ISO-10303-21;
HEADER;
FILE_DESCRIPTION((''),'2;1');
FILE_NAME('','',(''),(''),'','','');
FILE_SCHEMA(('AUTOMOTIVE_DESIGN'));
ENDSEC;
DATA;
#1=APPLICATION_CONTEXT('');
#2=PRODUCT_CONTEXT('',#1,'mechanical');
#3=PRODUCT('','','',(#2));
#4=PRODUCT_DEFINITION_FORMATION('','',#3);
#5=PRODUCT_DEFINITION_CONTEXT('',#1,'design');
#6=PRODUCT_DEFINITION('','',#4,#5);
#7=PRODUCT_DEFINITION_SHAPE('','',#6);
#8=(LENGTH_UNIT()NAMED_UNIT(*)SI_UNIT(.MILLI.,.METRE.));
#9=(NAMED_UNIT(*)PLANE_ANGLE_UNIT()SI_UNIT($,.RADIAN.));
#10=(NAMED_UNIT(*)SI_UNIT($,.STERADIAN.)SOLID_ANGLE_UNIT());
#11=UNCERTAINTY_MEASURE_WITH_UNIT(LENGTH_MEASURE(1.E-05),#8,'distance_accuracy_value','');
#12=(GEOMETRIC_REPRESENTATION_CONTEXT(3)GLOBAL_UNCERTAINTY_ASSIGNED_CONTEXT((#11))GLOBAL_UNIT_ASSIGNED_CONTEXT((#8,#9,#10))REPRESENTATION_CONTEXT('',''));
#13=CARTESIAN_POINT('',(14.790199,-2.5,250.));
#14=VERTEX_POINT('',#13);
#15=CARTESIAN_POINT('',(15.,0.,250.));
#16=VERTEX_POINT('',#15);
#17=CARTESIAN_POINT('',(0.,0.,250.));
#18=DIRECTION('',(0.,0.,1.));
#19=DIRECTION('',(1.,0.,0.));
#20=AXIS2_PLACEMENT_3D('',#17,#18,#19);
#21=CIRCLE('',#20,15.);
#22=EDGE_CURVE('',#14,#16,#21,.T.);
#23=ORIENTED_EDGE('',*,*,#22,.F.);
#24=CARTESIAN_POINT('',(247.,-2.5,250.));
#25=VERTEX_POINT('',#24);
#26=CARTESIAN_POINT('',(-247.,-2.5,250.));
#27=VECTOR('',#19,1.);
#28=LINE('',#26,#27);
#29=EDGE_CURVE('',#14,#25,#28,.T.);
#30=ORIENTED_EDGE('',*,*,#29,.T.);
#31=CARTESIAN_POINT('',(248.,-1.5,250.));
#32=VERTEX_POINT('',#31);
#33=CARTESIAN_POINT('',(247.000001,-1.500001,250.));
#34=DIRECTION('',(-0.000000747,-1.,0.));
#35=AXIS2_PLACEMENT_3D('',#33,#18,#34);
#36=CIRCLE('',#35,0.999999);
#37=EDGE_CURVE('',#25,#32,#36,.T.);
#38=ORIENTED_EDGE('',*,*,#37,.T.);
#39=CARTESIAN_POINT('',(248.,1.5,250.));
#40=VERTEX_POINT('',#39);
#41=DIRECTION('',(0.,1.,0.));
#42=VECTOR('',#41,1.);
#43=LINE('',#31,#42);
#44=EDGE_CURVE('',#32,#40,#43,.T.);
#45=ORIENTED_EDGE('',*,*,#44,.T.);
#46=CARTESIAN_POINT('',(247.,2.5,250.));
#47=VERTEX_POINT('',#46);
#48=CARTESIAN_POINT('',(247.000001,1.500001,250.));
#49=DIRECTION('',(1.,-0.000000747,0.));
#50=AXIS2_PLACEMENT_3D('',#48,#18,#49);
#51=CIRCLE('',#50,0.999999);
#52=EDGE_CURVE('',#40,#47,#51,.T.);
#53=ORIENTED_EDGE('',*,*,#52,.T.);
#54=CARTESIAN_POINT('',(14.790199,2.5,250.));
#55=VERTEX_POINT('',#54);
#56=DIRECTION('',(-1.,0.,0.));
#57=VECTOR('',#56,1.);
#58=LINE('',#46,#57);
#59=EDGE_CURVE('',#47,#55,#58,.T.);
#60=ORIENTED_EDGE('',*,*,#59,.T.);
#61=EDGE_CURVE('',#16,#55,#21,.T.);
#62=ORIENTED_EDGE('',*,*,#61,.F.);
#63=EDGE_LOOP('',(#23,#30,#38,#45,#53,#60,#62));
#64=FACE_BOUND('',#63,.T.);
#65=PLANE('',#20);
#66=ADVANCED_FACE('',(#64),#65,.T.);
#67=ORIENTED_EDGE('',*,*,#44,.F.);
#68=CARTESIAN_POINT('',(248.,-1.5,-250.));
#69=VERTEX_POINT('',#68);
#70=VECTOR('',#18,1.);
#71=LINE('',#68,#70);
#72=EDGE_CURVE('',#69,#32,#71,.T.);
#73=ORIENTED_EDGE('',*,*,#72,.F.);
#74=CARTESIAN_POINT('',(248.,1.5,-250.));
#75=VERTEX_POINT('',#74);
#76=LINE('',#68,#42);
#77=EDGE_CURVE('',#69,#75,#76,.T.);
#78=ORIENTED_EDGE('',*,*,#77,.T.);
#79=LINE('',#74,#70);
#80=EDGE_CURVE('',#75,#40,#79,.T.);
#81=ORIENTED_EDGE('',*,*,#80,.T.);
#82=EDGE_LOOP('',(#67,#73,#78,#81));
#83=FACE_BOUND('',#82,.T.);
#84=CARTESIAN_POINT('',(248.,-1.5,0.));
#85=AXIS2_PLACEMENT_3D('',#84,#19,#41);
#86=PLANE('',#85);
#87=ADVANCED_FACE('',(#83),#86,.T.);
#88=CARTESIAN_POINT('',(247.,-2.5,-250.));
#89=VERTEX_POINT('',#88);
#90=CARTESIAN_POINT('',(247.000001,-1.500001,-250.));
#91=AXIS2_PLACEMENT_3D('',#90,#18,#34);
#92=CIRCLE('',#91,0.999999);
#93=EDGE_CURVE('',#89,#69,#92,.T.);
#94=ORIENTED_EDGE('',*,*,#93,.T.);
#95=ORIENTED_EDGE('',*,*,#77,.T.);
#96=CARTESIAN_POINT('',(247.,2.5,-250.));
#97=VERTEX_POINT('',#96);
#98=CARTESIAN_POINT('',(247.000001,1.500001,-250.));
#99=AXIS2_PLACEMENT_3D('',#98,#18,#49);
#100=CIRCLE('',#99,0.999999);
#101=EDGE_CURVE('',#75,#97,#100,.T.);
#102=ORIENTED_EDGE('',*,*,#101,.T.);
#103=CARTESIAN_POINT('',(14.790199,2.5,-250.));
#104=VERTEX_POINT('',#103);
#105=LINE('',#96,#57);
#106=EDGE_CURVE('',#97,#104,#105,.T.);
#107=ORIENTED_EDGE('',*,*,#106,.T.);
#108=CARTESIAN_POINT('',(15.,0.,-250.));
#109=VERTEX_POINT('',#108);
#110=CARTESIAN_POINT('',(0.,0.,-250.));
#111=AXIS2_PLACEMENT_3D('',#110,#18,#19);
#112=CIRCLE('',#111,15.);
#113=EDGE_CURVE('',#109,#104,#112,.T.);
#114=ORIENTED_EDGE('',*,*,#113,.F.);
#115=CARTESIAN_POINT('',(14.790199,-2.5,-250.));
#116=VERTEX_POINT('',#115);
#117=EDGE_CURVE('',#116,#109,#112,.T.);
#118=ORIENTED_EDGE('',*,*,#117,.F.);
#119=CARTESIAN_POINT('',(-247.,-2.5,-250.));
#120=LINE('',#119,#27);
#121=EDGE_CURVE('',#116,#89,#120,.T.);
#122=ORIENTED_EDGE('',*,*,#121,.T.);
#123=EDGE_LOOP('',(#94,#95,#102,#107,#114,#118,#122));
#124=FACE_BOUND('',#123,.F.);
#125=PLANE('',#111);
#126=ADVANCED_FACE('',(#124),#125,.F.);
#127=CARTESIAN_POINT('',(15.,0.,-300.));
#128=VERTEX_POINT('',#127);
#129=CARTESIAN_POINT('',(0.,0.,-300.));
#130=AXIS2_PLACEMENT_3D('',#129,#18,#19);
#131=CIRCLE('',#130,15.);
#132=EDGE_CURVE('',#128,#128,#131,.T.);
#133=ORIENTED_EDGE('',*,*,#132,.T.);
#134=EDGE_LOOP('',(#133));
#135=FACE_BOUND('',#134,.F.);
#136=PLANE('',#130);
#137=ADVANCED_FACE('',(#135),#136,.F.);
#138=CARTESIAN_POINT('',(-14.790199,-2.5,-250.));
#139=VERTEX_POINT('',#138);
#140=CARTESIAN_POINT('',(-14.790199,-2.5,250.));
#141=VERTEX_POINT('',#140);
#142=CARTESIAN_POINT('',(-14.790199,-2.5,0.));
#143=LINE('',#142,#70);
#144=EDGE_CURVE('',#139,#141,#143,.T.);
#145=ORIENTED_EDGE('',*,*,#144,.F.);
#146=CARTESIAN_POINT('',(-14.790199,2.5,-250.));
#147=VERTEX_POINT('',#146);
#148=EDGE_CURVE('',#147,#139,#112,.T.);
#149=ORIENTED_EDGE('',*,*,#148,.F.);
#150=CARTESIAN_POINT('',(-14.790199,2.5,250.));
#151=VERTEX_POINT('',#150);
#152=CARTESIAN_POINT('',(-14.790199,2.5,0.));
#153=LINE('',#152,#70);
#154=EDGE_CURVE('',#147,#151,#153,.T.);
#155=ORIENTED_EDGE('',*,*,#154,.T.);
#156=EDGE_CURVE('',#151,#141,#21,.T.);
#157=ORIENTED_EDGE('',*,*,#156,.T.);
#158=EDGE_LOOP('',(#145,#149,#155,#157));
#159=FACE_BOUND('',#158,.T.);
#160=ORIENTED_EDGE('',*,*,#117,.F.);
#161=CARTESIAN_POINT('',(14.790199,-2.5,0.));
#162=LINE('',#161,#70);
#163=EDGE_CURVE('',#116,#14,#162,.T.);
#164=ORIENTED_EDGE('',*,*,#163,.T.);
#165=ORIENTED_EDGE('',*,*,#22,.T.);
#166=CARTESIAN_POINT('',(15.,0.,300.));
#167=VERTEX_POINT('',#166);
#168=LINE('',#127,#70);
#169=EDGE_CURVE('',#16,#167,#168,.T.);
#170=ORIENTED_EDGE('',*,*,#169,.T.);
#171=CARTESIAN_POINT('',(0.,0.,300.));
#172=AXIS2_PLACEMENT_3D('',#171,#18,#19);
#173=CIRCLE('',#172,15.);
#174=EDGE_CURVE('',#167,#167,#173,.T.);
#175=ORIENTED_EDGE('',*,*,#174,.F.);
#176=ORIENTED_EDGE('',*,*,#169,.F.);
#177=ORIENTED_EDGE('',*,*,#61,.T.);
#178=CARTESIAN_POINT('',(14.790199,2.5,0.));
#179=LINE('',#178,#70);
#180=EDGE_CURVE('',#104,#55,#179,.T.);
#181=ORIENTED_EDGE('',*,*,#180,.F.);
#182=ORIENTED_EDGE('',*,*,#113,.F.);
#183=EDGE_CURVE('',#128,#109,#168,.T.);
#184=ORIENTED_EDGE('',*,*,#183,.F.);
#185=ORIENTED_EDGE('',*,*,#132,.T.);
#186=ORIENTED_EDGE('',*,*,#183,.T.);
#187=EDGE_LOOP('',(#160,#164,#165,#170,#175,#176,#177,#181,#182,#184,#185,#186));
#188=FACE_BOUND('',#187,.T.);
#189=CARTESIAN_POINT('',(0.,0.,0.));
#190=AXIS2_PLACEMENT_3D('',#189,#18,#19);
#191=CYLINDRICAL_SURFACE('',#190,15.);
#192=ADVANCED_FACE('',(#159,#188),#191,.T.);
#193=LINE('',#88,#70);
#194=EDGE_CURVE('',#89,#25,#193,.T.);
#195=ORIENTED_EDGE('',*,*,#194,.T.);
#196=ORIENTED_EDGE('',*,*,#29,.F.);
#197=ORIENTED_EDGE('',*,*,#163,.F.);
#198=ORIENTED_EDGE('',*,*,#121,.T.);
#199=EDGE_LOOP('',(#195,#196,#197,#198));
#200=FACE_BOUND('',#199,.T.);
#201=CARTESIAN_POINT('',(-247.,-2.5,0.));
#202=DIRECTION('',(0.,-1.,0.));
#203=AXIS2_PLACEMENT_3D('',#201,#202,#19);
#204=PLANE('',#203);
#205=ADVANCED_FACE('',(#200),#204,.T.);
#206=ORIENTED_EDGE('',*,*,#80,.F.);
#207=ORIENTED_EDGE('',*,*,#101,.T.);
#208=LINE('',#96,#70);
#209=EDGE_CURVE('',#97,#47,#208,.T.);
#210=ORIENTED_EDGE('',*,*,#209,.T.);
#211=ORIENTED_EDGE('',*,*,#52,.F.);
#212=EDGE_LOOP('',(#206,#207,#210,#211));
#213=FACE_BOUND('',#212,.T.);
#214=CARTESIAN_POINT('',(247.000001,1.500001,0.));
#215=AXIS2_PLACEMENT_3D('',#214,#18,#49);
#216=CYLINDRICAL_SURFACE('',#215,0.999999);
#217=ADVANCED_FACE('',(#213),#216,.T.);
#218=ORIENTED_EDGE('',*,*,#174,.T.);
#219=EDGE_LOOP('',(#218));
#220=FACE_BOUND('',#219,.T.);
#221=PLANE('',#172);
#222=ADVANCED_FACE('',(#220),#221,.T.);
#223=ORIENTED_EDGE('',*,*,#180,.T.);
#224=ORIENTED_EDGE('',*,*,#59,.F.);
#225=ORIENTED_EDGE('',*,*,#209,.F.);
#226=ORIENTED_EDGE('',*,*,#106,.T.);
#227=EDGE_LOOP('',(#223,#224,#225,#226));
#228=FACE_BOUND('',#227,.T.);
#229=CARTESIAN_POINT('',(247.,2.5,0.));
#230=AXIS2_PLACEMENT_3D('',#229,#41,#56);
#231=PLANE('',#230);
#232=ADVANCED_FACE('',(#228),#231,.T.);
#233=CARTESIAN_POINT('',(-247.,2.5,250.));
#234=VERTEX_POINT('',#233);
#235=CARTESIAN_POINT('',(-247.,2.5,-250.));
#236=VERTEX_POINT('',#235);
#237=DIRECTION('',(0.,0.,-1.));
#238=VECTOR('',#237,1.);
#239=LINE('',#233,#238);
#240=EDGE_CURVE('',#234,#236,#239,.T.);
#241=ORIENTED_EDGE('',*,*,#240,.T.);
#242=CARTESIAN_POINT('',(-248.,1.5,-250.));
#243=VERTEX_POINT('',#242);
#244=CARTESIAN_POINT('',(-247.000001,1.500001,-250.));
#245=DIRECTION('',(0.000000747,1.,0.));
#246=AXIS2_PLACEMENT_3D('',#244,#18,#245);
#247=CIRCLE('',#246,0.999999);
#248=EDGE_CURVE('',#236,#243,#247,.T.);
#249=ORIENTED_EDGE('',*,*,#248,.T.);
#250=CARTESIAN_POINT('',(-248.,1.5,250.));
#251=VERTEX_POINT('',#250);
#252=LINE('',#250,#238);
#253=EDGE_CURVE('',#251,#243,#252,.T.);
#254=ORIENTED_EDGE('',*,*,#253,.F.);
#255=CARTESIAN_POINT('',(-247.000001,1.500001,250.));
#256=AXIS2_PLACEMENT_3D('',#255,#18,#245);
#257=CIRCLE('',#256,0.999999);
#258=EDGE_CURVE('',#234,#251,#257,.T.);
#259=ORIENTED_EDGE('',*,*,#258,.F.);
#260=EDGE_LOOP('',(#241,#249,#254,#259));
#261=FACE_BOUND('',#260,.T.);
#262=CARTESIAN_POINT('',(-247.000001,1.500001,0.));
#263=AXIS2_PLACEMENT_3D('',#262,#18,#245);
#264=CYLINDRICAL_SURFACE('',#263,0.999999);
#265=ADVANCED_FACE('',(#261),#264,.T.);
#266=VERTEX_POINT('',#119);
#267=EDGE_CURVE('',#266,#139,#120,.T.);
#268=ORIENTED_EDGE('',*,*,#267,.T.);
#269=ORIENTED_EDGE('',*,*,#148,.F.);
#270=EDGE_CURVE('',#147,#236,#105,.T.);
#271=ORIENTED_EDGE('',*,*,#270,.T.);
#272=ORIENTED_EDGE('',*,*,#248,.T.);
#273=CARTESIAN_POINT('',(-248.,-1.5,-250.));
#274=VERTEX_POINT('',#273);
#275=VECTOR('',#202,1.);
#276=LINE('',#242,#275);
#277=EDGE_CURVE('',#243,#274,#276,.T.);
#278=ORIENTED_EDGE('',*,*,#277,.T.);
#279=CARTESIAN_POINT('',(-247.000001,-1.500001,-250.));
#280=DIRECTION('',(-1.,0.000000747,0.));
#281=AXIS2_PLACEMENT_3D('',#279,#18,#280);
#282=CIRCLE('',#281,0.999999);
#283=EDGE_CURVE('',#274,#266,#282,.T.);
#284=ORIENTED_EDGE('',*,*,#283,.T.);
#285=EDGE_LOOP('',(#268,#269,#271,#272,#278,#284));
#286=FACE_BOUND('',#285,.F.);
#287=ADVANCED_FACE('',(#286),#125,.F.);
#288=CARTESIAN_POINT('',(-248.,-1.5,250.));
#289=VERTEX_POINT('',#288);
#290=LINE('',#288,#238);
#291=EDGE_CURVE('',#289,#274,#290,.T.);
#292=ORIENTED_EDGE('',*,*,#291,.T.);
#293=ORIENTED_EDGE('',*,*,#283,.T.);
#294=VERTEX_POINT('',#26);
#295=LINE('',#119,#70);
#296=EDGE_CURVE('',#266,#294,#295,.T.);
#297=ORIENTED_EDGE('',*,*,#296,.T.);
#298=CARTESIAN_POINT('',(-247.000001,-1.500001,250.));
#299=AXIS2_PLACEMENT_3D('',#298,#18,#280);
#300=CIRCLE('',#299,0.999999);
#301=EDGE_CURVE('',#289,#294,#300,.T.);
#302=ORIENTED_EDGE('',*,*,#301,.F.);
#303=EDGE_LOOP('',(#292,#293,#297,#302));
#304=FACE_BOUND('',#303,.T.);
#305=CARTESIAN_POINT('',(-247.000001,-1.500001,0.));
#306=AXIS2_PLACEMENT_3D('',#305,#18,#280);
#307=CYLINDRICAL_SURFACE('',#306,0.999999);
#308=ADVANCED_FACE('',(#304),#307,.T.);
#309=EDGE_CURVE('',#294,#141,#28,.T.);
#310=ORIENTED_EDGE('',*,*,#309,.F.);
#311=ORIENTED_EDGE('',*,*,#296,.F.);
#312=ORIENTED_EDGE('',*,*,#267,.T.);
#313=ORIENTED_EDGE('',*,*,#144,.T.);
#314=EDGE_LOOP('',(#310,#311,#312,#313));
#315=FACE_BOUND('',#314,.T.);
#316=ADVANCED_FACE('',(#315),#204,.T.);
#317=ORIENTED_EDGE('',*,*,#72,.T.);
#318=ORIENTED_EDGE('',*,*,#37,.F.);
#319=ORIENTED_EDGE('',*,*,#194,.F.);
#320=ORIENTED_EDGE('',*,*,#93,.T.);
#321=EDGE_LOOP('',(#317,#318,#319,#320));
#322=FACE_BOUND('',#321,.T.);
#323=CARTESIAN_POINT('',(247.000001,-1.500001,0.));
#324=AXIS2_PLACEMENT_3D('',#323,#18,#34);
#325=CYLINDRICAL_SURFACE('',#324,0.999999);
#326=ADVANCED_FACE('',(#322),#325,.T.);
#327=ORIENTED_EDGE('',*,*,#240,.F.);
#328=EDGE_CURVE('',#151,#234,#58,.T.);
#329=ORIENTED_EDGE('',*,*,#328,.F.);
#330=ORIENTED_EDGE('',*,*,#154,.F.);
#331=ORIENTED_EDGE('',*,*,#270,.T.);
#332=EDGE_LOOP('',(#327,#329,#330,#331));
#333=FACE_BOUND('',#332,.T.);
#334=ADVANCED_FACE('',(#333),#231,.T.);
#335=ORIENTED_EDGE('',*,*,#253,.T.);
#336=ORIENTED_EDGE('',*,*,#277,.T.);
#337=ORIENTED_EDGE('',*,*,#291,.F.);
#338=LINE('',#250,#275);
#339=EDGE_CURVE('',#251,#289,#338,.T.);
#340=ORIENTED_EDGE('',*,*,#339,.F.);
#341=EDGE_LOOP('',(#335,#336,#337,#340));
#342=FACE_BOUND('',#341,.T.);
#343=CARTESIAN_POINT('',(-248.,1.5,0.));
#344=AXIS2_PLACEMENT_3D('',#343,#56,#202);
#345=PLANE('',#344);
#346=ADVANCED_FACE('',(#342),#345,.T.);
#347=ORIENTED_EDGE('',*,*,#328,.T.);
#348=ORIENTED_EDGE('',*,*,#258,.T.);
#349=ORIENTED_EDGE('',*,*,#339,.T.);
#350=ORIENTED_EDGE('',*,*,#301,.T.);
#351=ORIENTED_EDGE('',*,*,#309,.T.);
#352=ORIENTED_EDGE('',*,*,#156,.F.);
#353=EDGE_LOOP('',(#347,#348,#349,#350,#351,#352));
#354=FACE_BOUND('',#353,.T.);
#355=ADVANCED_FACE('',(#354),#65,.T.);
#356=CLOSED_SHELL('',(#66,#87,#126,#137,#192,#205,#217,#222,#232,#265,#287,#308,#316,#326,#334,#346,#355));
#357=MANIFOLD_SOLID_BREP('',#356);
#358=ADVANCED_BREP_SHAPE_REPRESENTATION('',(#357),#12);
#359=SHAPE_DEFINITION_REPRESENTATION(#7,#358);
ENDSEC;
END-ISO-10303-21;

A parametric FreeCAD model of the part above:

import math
import FreeCAD as App
import Part
import Sketcher

V = App.Vector
Q = App.Units.Quantity

doc = App.newDocument("Part")
params = doc.addObject("Spreadsheet::Sheet", "Params")
for row, (alias, value) in enumerate([
    ("sketch1_diameter", "30 mm"),
    ("pad1_length", "600 mm"),
    ("sketch2_radius", "0.999999 mm"),
    ("sketch2_width", "494 mm"),
    ("sketch2_height", "3 mm"),
    ("pad2_length", "500 mm"),
], start=1):
    params.set(f"A{row}", alias)
    params.set(f"B{row}", "=" + value)
    params.setAlias(f"B{row}", alias)

body = doc.addObject("PartDesign::Body", "Body")

sketch1 = doc.addObject("Sketcher::SketchObject", "Sketch")
body.addObject(sketch1)
sketch1.AttachmentSupport = (doc.XY_Plane, [""])
sketch1.MapMode = "FlatFace"
sketch1.addGeometry(Part.Circle(V(0, 0, 0), V(0, 0, 1), 15), False)
sketch1.addConstraint([
    Sketcher.Constraint("Coincident", 0, 3, -1, 1),
    Sketcher.Constraint("Diameter", 0, Q("30 mm")),
])
sketch1.setExpression("Constraints[1]", "Params.sketch1_diameter")
pad1 = doc.addObject("PartDesign::Pad", "Pad")
body.addObject(pad1)
pad1.Profile = sketch1
pad1.setExpression("Length", "Params.pad1_length")
pad1.Midplane = True

sketch2 = doc.addObject("Sketcher::SketchObject", "Sketch001")
body.addObject(sketch2)
sketch2.AttachmentSupport = (doc.XY_Plane, [""])
sketch2.MapMode = "FlatFace"
sketch2.addGeometry([
    Part.ArcOfCircle(Part.Circle(V(-247, -1.5, 0), V(0, 0, 1), 1), math.radians(180), math.radians(270)),
    Part.LineSegment(V(-247, -2.5, 0), V(247, -2.5, 0)),
    Part.ArcOfCircle(Part.Circle(V(247, -1.5, 0), V(0, 0, 1), 1), math.radians(-90), math.radians(0)),
    Part.LineSegment(V(248, -1.5, 0), V(248, 1.5, 0)),
    Part.ArcOfCircle(Part.Circle(V(247, 1.5, 0), V(0, 0, 1), 1), math.radians(0), math.radians(90)),
    Part.LineSegment(V(247, 2.5, 0), V(-247, 2.5, 0)),
    Part.ArcOfCircle(Part.Circle(V(-247, 1.5, 0), V(0, 0, 1), 1), math.radians(90), math.radians(180)),
    Part.LineSegment(V(-248, 1.5, 0), V(-248, -1.5, 0)),
], False)
sketch2.addConstraint([
    Sketcher.Constraint("Tangent", 0, 2, 1, 1),
    Sketcher.Constraint("Tangent", 1, 2, 2, 1),
    Sketcher.Constraint("Tangent", 2, 2, 3, 1),
    Sketcher.Constraint("Tangent", 3, 2, 4, 1),
    Sketcher.Constraint("Tangent", 4, 2, 5, 1),
    Sketcher.Constraint("Tangent", 5, 2, 6, 1),
    Sketcher.Constraint("Tangent", 6, 2, 7, 1),
    Sketcher.Constraint("Tangent", 7, 2, 0, 1),
    Sketcher.Constraint("Horizontal", 1),
    Sketcher.Constraint("Vertical", 3),
    Sketcher.Constraint("Horizontal", 5),
    Sketcher.Constraint("Vertical", 7),
    Sketcher.Constraint("Equal", 0, 2),
    Sketcher.Constraint("Equal", 2, 4),
    Sketcher.Constraint("Equal", 4, 6),
    Sketcher.Constraint("Symmetric", 0, 3, 4, 3, -1, 1),
    Sketcher.Constraint("Radius", 0, Q("0.999999 mm")),
    Sketcher.Constraint("DistanceX", 1, 1, 1, 2, Q("494 mm")),
    Sketcher.Constraint("DistanceY", 3, 1, 3, 2, Q("3 mm")),
])
sketch2.setExpression("Constraints[16]", "Params.sketch2_radius")
sketch2.setExpression("Constraints[17]", "Params.sketch2_width")
sketch2.setExpression("Constraints[18]", "Params.sketch2_height")
pad2 = doc.addObject("PartDesign::Pad", "Pad001")
body.addObject(pad2)
pad2.Profile = sketch2
pad2.setExpression("Length", "Params.pad2_length")
pad2.Midplane = True

doc.recompute()
